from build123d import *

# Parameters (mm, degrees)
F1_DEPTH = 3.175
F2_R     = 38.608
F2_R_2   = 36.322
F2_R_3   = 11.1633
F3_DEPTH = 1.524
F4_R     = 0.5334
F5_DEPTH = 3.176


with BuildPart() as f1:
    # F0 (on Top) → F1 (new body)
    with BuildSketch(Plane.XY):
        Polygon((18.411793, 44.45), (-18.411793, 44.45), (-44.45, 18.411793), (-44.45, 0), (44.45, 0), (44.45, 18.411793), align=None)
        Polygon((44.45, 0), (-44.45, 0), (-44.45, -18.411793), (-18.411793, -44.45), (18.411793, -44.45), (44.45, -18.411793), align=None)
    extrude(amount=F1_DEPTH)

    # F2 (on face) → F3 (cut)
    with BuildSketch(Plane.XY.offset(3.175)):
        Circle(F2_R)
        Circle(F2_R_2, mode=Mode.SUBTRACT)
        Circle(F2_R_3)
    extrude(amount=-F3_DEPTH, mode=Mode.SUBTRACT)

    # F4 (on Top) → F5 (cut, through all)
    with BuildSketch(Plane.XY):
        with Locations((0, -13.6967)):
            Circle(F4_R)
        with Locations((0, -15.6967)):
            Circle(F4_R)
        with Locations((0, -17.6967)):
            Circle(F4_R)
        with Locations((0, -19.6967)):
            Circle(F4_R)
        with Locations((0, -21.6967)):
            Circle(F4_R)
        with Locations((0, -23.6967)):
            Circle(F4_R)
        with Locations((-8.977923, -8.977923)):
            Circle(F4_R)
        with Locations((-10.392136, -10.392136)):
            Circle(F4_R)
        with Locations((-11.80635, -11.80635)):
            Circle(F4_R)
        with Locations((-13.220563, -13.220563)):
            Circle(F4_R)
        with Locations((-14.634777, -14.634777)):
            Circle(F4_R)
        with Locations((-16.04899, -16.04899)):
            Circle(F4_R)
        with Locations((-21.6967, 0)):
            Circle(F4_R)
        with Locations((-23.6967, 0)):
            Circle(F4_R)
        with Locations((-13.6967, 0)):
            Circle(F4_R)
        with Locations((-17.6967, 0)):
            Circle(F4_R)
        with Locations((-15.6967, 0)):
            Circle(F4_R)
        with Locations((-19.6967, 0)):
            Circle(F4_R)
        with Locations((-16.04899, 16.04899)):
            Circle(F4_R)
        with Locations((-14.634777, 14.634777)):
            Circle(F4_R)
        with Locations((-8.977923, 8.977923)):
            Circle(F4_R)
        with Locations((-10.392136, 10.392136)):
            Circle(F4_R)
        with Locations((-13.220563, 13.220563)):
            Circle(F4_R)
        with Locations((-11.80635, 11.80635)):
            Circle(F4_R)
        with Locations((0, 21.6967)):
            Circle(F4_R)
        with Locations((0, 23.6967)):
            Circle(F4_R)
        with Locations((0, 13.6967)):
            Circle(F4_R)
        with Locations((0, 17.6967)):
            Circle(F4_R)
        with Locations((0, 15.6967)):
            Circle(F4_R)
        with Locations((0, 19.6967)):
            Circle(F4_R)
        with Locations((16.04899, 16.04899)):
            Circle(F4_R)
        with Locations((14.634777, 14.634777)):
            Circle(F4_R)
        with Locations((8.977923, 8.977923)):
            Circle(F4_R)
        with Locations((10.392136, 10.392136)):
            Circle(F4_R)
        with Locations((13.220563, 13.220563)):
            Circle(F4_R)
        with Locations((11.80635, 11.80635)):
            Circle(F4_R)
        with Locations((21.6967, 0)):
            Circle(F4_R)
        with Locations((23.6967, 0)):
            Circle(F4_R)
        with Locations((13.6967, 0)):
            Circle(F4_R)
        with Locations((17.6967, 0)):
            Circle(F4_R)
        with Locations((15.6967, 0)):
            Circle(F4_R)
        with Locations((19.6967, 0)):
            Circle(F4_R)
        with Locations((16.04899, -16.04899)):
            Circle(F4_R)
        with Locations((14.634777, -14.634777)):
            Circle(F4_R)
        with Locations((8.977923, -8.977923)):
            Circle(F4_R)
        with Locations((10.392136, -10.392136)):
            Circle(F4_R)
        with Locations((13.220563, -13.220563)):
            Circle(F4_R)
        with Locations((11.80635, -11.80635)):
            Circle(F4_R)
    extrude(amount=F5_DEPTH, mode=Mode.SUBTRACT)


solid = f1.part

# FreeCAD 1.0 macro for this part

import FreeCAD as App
import Part
import Sketcher

V = App.Vector
Q = App.Units.Quantity

doc = App.newDocument("Part")
body = doc.addObject("PartDesign::Body", "Body")

# Sketch on XY plane
sketch1 = doc.addObject("Sketcher::SketchObject", "Sketch")
body.addObject(sketch1)
sketch1.AttachmentSupport = (doc.XY_Plane, [""])
sketch1.MapMode = "FlatFace"
sketch1.addGeometry(Part.LineSegment(V(18, 44, 0), V(-18, 44, 0)), False)
sketch1.addGeometry(Part.LineSegment(V(-18, 44, 0), V(-44, 18, 0)), False)
sketch1.addGeometry(Part.LineSegment(V(-44, 18, 0), V(-44, -18, 0)), False)
sketch1.addGeometry(Part.LineSegment(V(-44, -18, 0), V(-18, -44, 0)), False)
sketch1.addGeometry(Part.LineSegment(V(-18, -44, 0), V(18, -44, 0)), False)
sketch1.addGeometry(Part.LineSegment(V(18, -44, 0), V(44, -18, 0)), False)
sketch1.addGeometry(Part.LineSegment(V(44, -18, 0), V(44, 18, 0)), False)
sketch1.addGeometry(Part.LineSegment(V(44, 18, 0), V(18, 44, 0)), False)
sketch1.addConstraint(Sketcher.Constraint("Coincident", 0, 2, 1, 1))
sketch1.addConstraint(Sketcher.Constraint("Coincident", 1, 2, 2, 1))
sketch1.addConstraint(Sketcher.Constraint("Coincident", 2, 2, 3, 1))
sketch1.addConstraint(Sketcher.Constraint("Coincident", 3, 2, 4, 1))
sketch1.addConstraint(Sketcher.Constraint("Coincident", 4, 2, 5, 1))
sketch1.addConstraint(Sketcher.Constraint("Coincident", 5, 2, 6, 1))
sketch1.addConstraint(Sketcher.Constraint("Coincident", 6, 2, 7, 1))
sketch1.addConstraint(Sketcher.Constraint("Coincident", 7, 2, 0, 1))
sketch1.addConstraint(Sketcher.Constraint("Horizontal", 0))
sketch1.addConstraint(Sketcher.Constraint("Vertical", 2))
sketch1.addConstraint(Sketcher.Constraint("Horizontal", 4))
sketch1.addConstraint(Sketcher.Constraint("Vertical", 6))
sketch1.addConstraint(Sketcher.Constraint("Symmetric", 0, 2, 4, 2, -1, 1))
sketch1.addConstraint(Sketcher.Constraint("Symmetric", 1, 2, 5, 2, -1, 1))
sketch1.addConstraint(Sketcher.Constraint("Perpendicular", 1, 3))
sketch1.addConstraint(Sketcher.Constraint("Perpendicular", 5, 7))
sketch1.addConstraint(Sketcher.Constraint("Horizontal", 2, 2, 5, 2))
sketch1.addConstraint(Sketcher.Constraint("Horizontal", 1, 2, 6, 2))
sketch1.addConstraint(Sketcher.Constraint("Vertical", 0, 2, 3, 2))
sketch1.addConstraint(Sketcher.Constraint("Equal", 4, 2))
sketch1.addConstraint(Sketcher.Constraint("DistanceY", 3, 2, 0, 2, Q("3.5 in")))
sketch1.addConstraint(Sketcher.Constraint("DistanceX", 0, 2, 0, 1, 36.823586))
pad1 = doc.addObject("PartDesign::Pad", "Pad")
body.addObject(pad1)
pad1.Profile = sketch1
pad1.Length = Q("0.125 in")

# Sketch on XY plane
sketch2 = doc.addObject("Sketcher::SketchObject", "Sketch001")
body.addObject(sketch2)
sketch2.AttachmentSupport = (doc.XY_Plane, [""])
sketch2.MapMode = "FlatFace"
sketch2.AttachmentOffset = App.Placement(V(0, 0, 0.125 * 25.4), App.Rotation())
sketch2.addGeometry(Part.Circle(V(0, 0, 0), V(0, 0, 1), 39), False)
sketch2.addGeometry(Part.Circle(V(0, 0, 0), V(0, 0, 1), 36), False)
sketch2.addGeometry(Part.Circle(V(0, 0, 0), V(0, 0, 1), 11), False)
sketch2.addConstraint(Sketcher.Constraint("Coincident", 0, 3, -1, 1))
sketch2.addConstraint(Sketcher.Constraint("Coincident", 1, 3, -1, 1))
sketch2.addConstraint(Sketcher.Constraint("Coincident", 2, 3, -1, 1))
sketch2.addConstraint(Sketcher.Constraint("Diameter", 0, Q("3.04 in")))
sketch2.addConstraint(Sketcher.Constraint("Diameter", 1, Q("2.86 in")))
sketch2.addConstraint(Sketcher.Constraint("Diameter", 2, Q("0.879 in")))
pocket1 = doc.addObject("PartDesign::Pocket", "Pocket")
body.addObject(pocket1)
pocket1.Profile = sketch2
pocket1.Length = Q("0.06 in")

# Sketch on XY plane
sketch3 = doc.addObject("Sketcher::SketchObject", "Sketch002")
body.addObject(sketch3)
sketch3.AttachmentSupport = (doc.XY_Plane, [""])
sketch3.MapMode = "FlatFace"
sketch3.addGeometry(Part.Circle(V(0, -13.7, 0), V(0, 0, 1), 0.5), False)
sketch3.addGeometry(Part.Circle(V(0, -15.7, 0), V(0, 0, 1), 0.5), False)
sketch3.addGeometry(Part.Circle(V(0, -17.7, 0), V(0, 0, 1), 0.5), False)
sketch3.addGeometry(Part.Circle(V(0, -19.7, 0), V(0, 0, 1), 0.5), False)
sketch3.addGeometry(Part.Circle(V(0, -21.7, 0), V(0, 0, 1), 0.5), False)
sketch3.addGeometry(Part.Circle(V(0, -23.7, 0), V(0, 0, 1), 0.5), False)
sketch3.addGeometry(Part.Circle(V(-9, -9, 0), V(0, 0, 1), 0.5), False)
sketch3.addGeometry(Part.Circle(V(-10.4, -10.4, 0), V(0, 0, 1), 0.5), False)
sketch3.addGeometry(Part.Circle(V(-11.8, -11.8, 0), V(0, 0, 1), 0.5), False)
sketch3.addGeometry(Part.Circle(V(-13.2, -13.2, 0), V(0, 0, 1), 0.5), False)
sketch3.addGeometry(Part.Circle(V(-14.6, -14.6, 0), V(0, 0, 1), 0.5), False)
sketch3.addGeometry(Part.Circle(V(-16, -16, 0), V(0, 0, 1), 0.5), False)
sketch3.addGeometry(Part.Circle(V(-21.7, 0, 0), V(0, 0, 1), 0.5), False)
sketch3.addGeometry(Part.Circle(V(-23.7, 0, 0), V(0, 0, 1), 0.5), False)
sketch3.addGeometry(Part.Circle(V(-13.7, 0, 0), V(0, 0, 1), 0.5), False)
sketch3.addGeometry(Part.Circle(V(-17.7, 0, 0), V(0, 0, 1), 0.5), False)
sketch3.addGeometry(Part.Circle(V(-15.7, 0, 0), V(0, 0, 1), 0.5), False)
sketch3.addGeometry(Part.Circle(V(-19.7, 0, 0), V(0, 0, 1), 0.5), False)
sketch3.addGeometry(Part.Circle(V(-16, 16, 0), V(0, 0, 1), 0.5), False)
sketch3.addGeometry(Part.Circle(V(-14.6, 14.6, 0), V(0, 0, 1), 0.5), False)
sketch3.addGeometry(Part.Circle(V(-9, 9, 0), V(0, 0, 1), 0.5), False)
sketch3.addGeometry(Part.Circle(V(-10.4, 10.4, 0), V(0, 0, 1), 0.5), False)
sketch3.addGeometry(Part.Circle(V(-13.2, 13.2, 0), V(0, 0, 1), 0.5), False)
sketch3.addGeometry(Part.Circle(V(-11.8, 11.8, 0), V(0, 0, 1), 0.5), False)
sketch3.addGeometry(Part.Circle(V(0, 21.7, 0), V(0, 0, 1), 0.5), False)
sketch3.addGeometry(Part.Circle(V(0, 23.7, 0), V(0, 0, 1), 0.5), False)
sketch3.addGeometry(Part.Circle(V(0, 13.7, 0), V(0, 0, 1), 0.5), False)
sketch3.addGeometry(Part.Circle(V(0, 17.7, 0), V(0, 0, 1), 0.5), False)
sketch3.addGeometry(Part.Circle(V(0, 15.7, 0), V(0, 0, 1), 0.5), False)
sketch3.addGeometry(Part.Circle(V(0, 19.7, 0), V(0, 0, 1), 0.5), False)
sketch3.addGeometry(Part.Circle(V(16, 16, 0), V(0, 0, 1), 0.5), False)
sketch3.addGeometry(Part.Circle(V(14.6, 14.6, 0), V(0, 0, 1), 0.5), False)
sketch3.addGeometry(Part.Circle(V(9, 9, 0), V(0, 0, 1), 0.5), False)
sketch3.addGeometry(Part.Circle(V(10.4, 10.4, 0), V(0, 0, 1), 0.5), False)
sketch3.addGeometry(Part.Circle(V(13.2, 13.2, 0), V(0, 0, 1), 0.5), False)
sketch3.addGeometry(Part.Circle(V(11.8, 11.8, 0), V(0, 0, 1), 0.5), False)
sketch3.addGeometry(Part.Circle(V(21.7, 0, 0), V(0, 0, 1), 0.5), False)
sketch3.addGeometry(Part.Circle(V(23.7, 0, 0), V(0, 0, 1), 0.5), False)
sketch3.addGeometry(Part.Circle(V(13.7, 0, 0), V(0, 0, 1), 0.5), False)
sketch3.addGeometry(Part.Circle(V(17.7, 0, 0), V(0, 0, 1), 0.5), False)
sketch3.addGeometry(Part.Circle(V(15.7, 0, 0), V(0, 0, 1), 0.5), False)
sketch3.addGeometry(Part.Circle(V(19.7, 0, 0), V(0, 0, 1), 0.5), False)
sketch3.addGeometry(Part.Circle(V(16, -16, 0), V(0, 0, 1), 0.5), False)
sketch3.addGeometry(Part.Circle(V(14.6, -14.6, 0), V(0, 0, 1), 0.5), False)
sketch3.addGeometry(Part.Circle(V(9, -9, 0), V(0, 0, 1), 0.5), False)
sketch3.addGeometry(Part.Circle(V(10.4, -10.4, 0), V(0, 0, 1), 0.5), False)
sketch3.addGeometry(Part.Circle(V(13.2, -13.2, 0), V(0, 0, 1), 0.5), False)
sketch3.addGeometry(Part.Circle(V(11.8, -11.8, 0), V(0, 0, 1), 0.5), False)
sketch3.addConstraint(Sketcher.Constraint("Equal", 0, 1))
sketch3.addConstraint(Sketcher.Constraint("Equal", 1, 2))
sketch3.addConstraint(Sketcher.Constraint("Equal", 2, 3))
sketch3.addConstraint(Sketcher.Constraint("Equal", 3, 4))
sketch3.addConstraint(Sketcher.Constraint("Equal", 4, 5))
sketch3.addConstraint(Sketcher.Constraint("Equal", 5, 6))
sketch3.addConstraint(Sketcher.Constraint("Equal", 6, 7))
sketch3.addConstraint(Sketcher.Constraint("Equal", 7, 8))
sketch3.addConstraint(Sketcher.Constraint("Equal", 8, 9))
sketch3.addConstraint(Sketcher.Constraint("Equal", 9, 10))
sketch3.addConstraint(Sketcher.Constraint("Equal", 10, 11))
sketch3.addConstraint(Sketcher.Constraint("Equal", 11, 12))
sketch3.addConstraint(Sketcher.Constraint("Equal", 12, 13))
sketch3.addConstraint(Sketcher.Constraint("Equal", 13, 14))
sketch3.addConstraint(Sketcher.Constraint("Equal", 14, 15))
sketch3.addConstraint(Sketcher.Constraint("Equal", 15, 16))
sketch3.addConstraint(Sketcher.Constraint("Equal", 16, 17))
sketch3.addConstraint(Sketcher.Constraint("Equal", 17, 18))
sketch3.addConstraint(Sketcher.Constraint("Equal", 18, 19))
sketch3.addConstraint(Sketcher.Constraint("Equal", 19, 20))
sketch3.addConstraint(Sketcher.Constraint("Equal", 20, 21))
sketch3.addConstraint(Sketcher.Constraint("Equal", 21, 22))
sketch3.addConstraint(Sketcher.Constraint("Equal", 22, 23))
sketch3.addConstraint(Sketcher.Constraint("Equal", 23, 24))
sketch3.addConstraint(Sketcher.Constraint("Equal", 24, 25))
sketch3.addConstraint(Sketcher.Constraint("Equal", 25, 26))
sketch3.addConstraint(Sketcher.Constraint("Equal", 26, 27))
sketch3.addConstraint(Sketcher.Constraint("Equal", 27, 28))
sketch3.addConstraint(Sketcher.Constraint("Equal", 28, 29))
sketch3.addConstraint(Sketcher.Constraint("Equal", 29, 30))
sketch3.addConstraint(Sketcher.Constraint("Equal", 30, 31))
sketch3.addConstraint(Sketcher.Constraint("Equal", 31, 32))
sketch3.addConstraint(Sketcher.Constraint("Equal", 32, 33))
sketch3.addConstraint(Sketcher.Constraint("Equal", 33, 34))
sketch3.addConstraint(Sketcher.Constraint("Equal", 34, 35))
sketch3.addConstraint(Sketcher.Constraint("Equal", 35, 36))
sketch3.addConstraint(Sketcher.Constraint("Equal", 36, 37))
sketch3.addConstraint(Sketcher.Constraint("Equal", 37, 38))
sketch3.addConstraint(Sketcher.Constraint("Equal", 38, 39))
sketch3.addConstraint(Sketcher.Constraint("Equal", 39, 40))
sketch3.addConstraint(Sketcher.Constraint("Equal", 40, 41))
sketch3.addConstraint(Sketcher.Constraint("Equal", 41, 42))
sketch3.addConstraint(Sketcher.Constraint("Equal", 42, 43))
sketch3.addConstraint(Sketcher.Constraint("Equal", 43, 44))
sketch3.addConstraint(Sketcher.Constraint("Equal", 44, 45))
sketch3.addConstraint(Sketcher.Constraint("Equal", 45, 46))
sketch3.addConstraint(Sketcher.Constraint("Equal", 46, 47))
sketch3.addConstraint(Sketcher.Constraint("Symmetric", 4, 3, 24, 3, -1, 1))
sketch3.addConstraint(Sketcher.Constraint("Symmetric", 5, 3, 25, 3, -1, 1))
sketch3.addConstraint(Sketcher.Constraint("Symmetric", 0, 3, 26, 3, -1, 1))
sketch3.addConstraint(Sketcher.Constraint("Symmetric", 2, 3, 27, 3, -1, 1))
sketch3.addConstraint(Sketcher.Constraint("Symmetric", 1, 3, 28, 3, -1, 1))
sketch3.addConstraint(Sketcher.Constraint("Symmetric", 3, 3, 29, 3, -1, 1))
sketch3.addConstraint(Sketcher.Constraint("Symmetric", 11, 3, 30, 3, -1, 1))
sketch3.addConstraint(Sketcher.Constraint("Symmetric", 10, 3, 31, 3, -1, 1))
sketch3.addConstraint(Sketcher.Constraint("Symmetric", 6, 3, 32, 3, -1, 1))
sketch3.addConstraint(Sketcher.Constraint("Symmetric", 7, 3, 33, 3, -1, 1))
sketch3.addConstraint(Sketcher.Constraint("Symmetric", 9, 3, 34, 3, -1, 1))
sketch3.addConstraint(Sketcher.Constraint("Symmetric", 8, 3, 35, 3, -1, 1))
sketch3.addConstraint(Sketcher.Constraint("Symmetric", 12, 3, 36, 3, -1, 1))
sketch3.addConstraint(Sketcher.Constraint("Symmetric", 13, 3, 37, 3, -1, 1))
sketch3.addConstraint(Sketcher.Constraint("Symmetric", 14, 3, 38, 3, -1, 1))
sketch3.addConstraint(Sketcher.Constraint("Symmetric", 15, 3, 39, 3, -1, 1))
sketch3.addConstraint(Sketcher.Constraint("Symmetric", 16, 3, 40, 3, -1, 1))
sketch3.addConstraint(Sketcher.Constraint("Symmetric", 17, 3, 41, 3, -1, 1))
sketch3.addConstraint(Sketcher.Constraint("Symmetric", 18, 3, 42, 3, -1, 1))
sketch3.addConstraint(Sketcher.Constraint("Symmetric", 19, 3, 43, 3, -1, 1))
sketch3.addConstraint(Sketcher.Constraint("Symmetric", 20, 3, 44, 3, -1, 1))
sketch3.addConstraint(Sketcher.Constraint("Symmetric", 21, 3, 45, 3, -1, 1))
sketch3.addConstraint(Sketcher.Constraint("Symmetric", 22, 3, 46, 3, -1, 1))
sketch3.addConstraint(Sketcher.Constraint("Symmetric", 23, 3, 47, 3, -1, 1))
sketch3.addConstraint(Sketcher.Constraint("Symmetric", 18, 3, 30, 3, -2))
sketch3.addConstraint(Sketcher.Constraint("Symmetric", 19, 3, 31, 3, -2))
sketch3.addConstraint(Sketcher.Constraint("Symmetric", 20, 3, 32, 3, -2))
sketch3.addConstraint(Sketcher.Constraint("Symmetric", 21, 3, 33, 3, -2))
sketch3.addConstraint(Sketcher.Constraint("Symmetric", 22, 3, 34, 3, -2))
sketch3.addConstraint(Sketcher.Constraint("Symmetric", 23, 3, 35, 3, -2))
sketch3.addConstraint(Sketcher.Constraint("PointOnObject", 0, 3, -2))
sketch3.addConstraint(Sketcher.Constraint("PointOnObject", 1, 3, -2))
sketch3.addConstraint(Sketcher.Constraint("PointOnObject", 2, 3, -2))
sketch3.addConstraint(Sketcher.Constraint("PointOnObject", 3, 3, -2))
sketch3.addConstraint(Sketcher.Constraint("PointOnObject", 4, 3, -2))
sketch3.addConstraint(Sketcher.Constraint("PointOnObject", 5, 3, -2))
sketch3.addConstraint(Sketcher.Constraint("PointOnObject", 12, 3, -1))
sketch3.addConstraint(Sketcher.Constraint("PointOnObject", 13, 3, -1))
sketch3.addConstraint(Sketcher.Constraint("PointOnObject", 14, 3, -1))
sketch3.addConstraint(Sketcher.Constraint("PointOnObject", 15, 3, -1))
sketch3.addConstraint(Sketcher.Constraint("PointOnObject", 16, 3, -1))
sketch3.addConstraint(Sketcher.Constraint("PointOnObject", 17, 3, -1))
sketch3.addConstraint(Sketcher.Constraint("Diameter", 0, Q("0.042 in")))
sketch3.addConstraint(Sketcher.Constraint("DistanceY", 0, 3, -1, 1, 13.6967))
sketch3.addConstraint(Sketcher.Constraint("DistanceY", 1, 3, -1, 1, 15.6967))
sketch3.addConstraint(Sketcher.Constraint("DistanceY", 2, 3, -1, 1, 17.6967))
sketch3.addConstraint(Sketcher.Constraint("DistanceY", 3, 3, -1, 1, 19.6967))
sketch3.addConstraint(Sketcher.Constraint("DistanceY", 4, 3, -1, 1, 21.6967))
sketch3.addConstraint(Sketcher.Constraint("DistanceY", 5, 3, -1, 1, 23.6967))
sketch3.addConstraint(Sketcher.Constraint("DistanceX", 12, 3, -1, 1, 21.6967))
sketch3.addConstraint(Sketcher.Constraint("DistanceX", 13, 3, -1, 1, 23.6967))
sketch3.addConstraint(Sketcher.Constraint("DistanceX", 14, 3, -1, 1, 13.6967))
sketch3.addConstraint(Sketcher.Constraint("DistanceX", 15, 3, -1, 1, 17.6967))
sketch3.addConstraint(Sketcher.Constraint("DistanceX", 16, 3, -1, 1, 15.6967))
sketch3.addConstraint(Sketcher.Constraint("DistanceX", 17, 3, -1, 1, 19.6967))
sketch3.addConstraint(Sketcher.Constraint("DistanceX", 8, 3, -1, 1, 11.80635))
sketch3.addConstraint(Sketcher.Constraint("DistanceY", 8, 3, -1, 1, 11.80635))
sketch3.addConstraint(Sketcher.Constraint("DistanceX", 11, 3, -1, 1, 16.04899))
sketch3.addConstraint(Sketcher.Constraint("DistanceY", 11, 3, -1, 1, 16.04899))
sketch3.addConstraint(Sketcher.Constraint("DistanceX", 9, 3, 6, 3, 4.24264))
sketch3.addConstraint(Sketcher.Constraint("DistanceY", 9, 3, 6, 3, 4.24264))
sketch3.addConstraint(Sketcher.Constraint("DistanceX", 10, 3, 7, 3, 4.242641))
sketch3.addConstraint(Sketcher.Constraint("DistanceY", 10, 3, 7, 3, 4.242641))
sketch3.addConstraint(Sketcher.Constraint("DistanceX", 6, 3, -1, 1, 8.977923))
sketch3.addConstraint(Sketcher.Constraint("DistanceY", 6, 3, -1, 1, 8.977923))
sketch3.addConstraint(Sketcher.Constraint("DistanceX", 7, 3, -1, 1, 10.392136))
sketch3.addConstraint(Sketcher.Constraint("DistanceY", 7, 3, -1, 1, 10.392136))
pocket2 = doc.addObject("PartDesign::Pocket", "Pocket001")
body.addObject(pocket2)
pocket2.Profile = sketch3
pocket2.Type = "ThroughAll"
pocket2.Reversed = True

doc.recompute()
